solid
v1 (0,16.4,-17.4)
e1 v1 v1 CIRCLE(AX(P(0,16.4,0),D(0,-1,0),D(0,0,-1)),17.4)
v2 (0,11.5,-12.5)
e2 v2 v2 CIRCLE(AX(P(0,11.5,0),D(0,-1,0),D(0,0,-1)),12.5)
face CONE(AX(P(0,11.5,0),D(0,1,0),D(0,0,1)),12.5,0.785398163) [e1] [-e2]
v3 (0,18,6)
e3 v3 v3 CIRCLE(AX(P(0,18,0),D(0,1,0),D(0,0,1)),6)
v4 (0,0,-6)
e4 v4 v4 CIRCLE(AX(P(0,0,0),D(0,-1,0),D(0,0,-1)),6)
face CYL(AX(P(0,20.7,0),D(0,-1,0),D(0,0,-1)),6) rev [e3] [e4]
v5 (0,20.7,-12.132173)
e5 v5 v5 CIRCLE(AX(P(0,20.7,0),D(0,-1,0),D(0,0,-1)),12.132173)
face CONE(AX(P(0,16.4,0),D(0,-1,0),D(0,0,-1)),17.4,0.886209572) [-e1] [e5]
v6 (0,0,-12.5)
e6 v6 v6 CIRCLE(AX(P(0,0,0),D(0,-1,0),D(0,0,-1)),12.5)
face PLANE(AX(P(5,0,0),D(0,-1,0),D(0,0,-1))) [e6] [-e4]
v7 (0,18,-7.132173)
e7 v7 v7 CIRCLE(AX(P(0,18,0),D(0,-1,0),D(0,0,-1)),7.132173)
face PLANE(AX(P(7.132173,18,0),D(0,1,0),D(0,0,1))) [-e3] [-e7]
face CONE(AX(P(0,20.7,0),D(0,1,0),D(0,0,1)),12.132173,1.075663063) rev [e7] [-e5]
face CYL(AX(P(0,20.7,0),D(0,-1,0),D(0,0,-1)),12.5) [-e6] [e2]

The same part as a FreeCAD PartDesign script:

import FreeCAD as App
import Part
import Sketcher

V = App.Vector
Q = App.Units.Quantity


def add_polygon(sketch, points):
    """Adds a closed chain of lines whose ends are joined by coincident constraints."""
    first, n = sketch.GeometryCount, len(points)
    for a, b in zip(points, points[1:] + points[:1]):
        sketch.addGeometry(Part.LineSegment(App.Vector(*a, 0), App.Vector(*b, 0)), False)
    for i in range(n):
        sketch.addConstraint(Sketcher.Constraint("Coincident", first + i, 2, first + (i + 1) % n, 1))

doc = App.newDocument("Part")
body = doc.addObject("PartDesign::Body", "Body")

sketch1 = body.newObject("Sketcher::SketchObject", "Sketch")
sketch1.AttachmentSupport = (doc.getObject("XY_Plane"), [""])
sketch1.MapMode = "FlatFace"
add_polygon(sketch1, [(17.4, 16.4), (12.1, 20.7), (7.1, 18), (5, 18), (5, 0), (12.5, 0), (12.5, 11.5)])
sketch1.addConstraint([
    Sketcher.Constraint("Horizontal", 2),
    Sketcher.Constraint("Vertical", 3),
    Sketcher.Constraint("Horizontal", 4),
    Sketcher.Constraint("Vertical", 5),
    Sketcher.Constraint("PointOnObject", 3, 2, -1),
    Sketcher.Constraint("DistanceY", 3, 2, 3, 1, 18.0),
    Sketcher.Constraint("Angle", 6, Q("45 deg")),
    Sketcher.Constraint("DistanceX", 4, 1, 4, 2, 7.5),
    Sketcher.Constraint("DistanceY", 5, 1, 5, 2, 11.5),
    Sketcher.Constraint("DistanceX", -1, 1, 2, 2, 5.0),
    Sketcher.Constraint("DistanceX", 1, 2, 0, 2, 5.0),
    Sketcher.Constraint("Distance", 0, 6.8),
    Sketcher.Constraint("DistanceY", -1, 1, 0, 2, 20.7),
    Sketcher.Constraint("DistanceX", -1, 1, 6, 2, 17.4),
])
revolution = body.newObject("PartDesign::Revolution", "Revolution")
revolution.Profile = sketch1
revolution.ReferenceAxis = (sketch1, ["V_Axis"])
revolution.Angle = 360

sketch2 = body.newObject("Sketcher::SketchObject", "Sketch001")
sketch2.AttachmentSupport = (doc.getObject("XZ_Plane"), [""])
sketch2.MapMode = "FlatFace"
sketch2.addGeometry(Part.Circle(V(0, 0, 0), V(0, 0, 1), 6), False)
sketch2.addConstraint([
    Sketcher.Constraint("Coincident", 0, 3, -1, 1),
    Sketcher.Constraint("Diameter", 0, 12.0),
])
pocket1 = body.newObject("PartDesign::Pocket", "Pocket")
pocket1.Profile = sketch2
pocket1.Type = "ThroughAll"

doc.recompute()
